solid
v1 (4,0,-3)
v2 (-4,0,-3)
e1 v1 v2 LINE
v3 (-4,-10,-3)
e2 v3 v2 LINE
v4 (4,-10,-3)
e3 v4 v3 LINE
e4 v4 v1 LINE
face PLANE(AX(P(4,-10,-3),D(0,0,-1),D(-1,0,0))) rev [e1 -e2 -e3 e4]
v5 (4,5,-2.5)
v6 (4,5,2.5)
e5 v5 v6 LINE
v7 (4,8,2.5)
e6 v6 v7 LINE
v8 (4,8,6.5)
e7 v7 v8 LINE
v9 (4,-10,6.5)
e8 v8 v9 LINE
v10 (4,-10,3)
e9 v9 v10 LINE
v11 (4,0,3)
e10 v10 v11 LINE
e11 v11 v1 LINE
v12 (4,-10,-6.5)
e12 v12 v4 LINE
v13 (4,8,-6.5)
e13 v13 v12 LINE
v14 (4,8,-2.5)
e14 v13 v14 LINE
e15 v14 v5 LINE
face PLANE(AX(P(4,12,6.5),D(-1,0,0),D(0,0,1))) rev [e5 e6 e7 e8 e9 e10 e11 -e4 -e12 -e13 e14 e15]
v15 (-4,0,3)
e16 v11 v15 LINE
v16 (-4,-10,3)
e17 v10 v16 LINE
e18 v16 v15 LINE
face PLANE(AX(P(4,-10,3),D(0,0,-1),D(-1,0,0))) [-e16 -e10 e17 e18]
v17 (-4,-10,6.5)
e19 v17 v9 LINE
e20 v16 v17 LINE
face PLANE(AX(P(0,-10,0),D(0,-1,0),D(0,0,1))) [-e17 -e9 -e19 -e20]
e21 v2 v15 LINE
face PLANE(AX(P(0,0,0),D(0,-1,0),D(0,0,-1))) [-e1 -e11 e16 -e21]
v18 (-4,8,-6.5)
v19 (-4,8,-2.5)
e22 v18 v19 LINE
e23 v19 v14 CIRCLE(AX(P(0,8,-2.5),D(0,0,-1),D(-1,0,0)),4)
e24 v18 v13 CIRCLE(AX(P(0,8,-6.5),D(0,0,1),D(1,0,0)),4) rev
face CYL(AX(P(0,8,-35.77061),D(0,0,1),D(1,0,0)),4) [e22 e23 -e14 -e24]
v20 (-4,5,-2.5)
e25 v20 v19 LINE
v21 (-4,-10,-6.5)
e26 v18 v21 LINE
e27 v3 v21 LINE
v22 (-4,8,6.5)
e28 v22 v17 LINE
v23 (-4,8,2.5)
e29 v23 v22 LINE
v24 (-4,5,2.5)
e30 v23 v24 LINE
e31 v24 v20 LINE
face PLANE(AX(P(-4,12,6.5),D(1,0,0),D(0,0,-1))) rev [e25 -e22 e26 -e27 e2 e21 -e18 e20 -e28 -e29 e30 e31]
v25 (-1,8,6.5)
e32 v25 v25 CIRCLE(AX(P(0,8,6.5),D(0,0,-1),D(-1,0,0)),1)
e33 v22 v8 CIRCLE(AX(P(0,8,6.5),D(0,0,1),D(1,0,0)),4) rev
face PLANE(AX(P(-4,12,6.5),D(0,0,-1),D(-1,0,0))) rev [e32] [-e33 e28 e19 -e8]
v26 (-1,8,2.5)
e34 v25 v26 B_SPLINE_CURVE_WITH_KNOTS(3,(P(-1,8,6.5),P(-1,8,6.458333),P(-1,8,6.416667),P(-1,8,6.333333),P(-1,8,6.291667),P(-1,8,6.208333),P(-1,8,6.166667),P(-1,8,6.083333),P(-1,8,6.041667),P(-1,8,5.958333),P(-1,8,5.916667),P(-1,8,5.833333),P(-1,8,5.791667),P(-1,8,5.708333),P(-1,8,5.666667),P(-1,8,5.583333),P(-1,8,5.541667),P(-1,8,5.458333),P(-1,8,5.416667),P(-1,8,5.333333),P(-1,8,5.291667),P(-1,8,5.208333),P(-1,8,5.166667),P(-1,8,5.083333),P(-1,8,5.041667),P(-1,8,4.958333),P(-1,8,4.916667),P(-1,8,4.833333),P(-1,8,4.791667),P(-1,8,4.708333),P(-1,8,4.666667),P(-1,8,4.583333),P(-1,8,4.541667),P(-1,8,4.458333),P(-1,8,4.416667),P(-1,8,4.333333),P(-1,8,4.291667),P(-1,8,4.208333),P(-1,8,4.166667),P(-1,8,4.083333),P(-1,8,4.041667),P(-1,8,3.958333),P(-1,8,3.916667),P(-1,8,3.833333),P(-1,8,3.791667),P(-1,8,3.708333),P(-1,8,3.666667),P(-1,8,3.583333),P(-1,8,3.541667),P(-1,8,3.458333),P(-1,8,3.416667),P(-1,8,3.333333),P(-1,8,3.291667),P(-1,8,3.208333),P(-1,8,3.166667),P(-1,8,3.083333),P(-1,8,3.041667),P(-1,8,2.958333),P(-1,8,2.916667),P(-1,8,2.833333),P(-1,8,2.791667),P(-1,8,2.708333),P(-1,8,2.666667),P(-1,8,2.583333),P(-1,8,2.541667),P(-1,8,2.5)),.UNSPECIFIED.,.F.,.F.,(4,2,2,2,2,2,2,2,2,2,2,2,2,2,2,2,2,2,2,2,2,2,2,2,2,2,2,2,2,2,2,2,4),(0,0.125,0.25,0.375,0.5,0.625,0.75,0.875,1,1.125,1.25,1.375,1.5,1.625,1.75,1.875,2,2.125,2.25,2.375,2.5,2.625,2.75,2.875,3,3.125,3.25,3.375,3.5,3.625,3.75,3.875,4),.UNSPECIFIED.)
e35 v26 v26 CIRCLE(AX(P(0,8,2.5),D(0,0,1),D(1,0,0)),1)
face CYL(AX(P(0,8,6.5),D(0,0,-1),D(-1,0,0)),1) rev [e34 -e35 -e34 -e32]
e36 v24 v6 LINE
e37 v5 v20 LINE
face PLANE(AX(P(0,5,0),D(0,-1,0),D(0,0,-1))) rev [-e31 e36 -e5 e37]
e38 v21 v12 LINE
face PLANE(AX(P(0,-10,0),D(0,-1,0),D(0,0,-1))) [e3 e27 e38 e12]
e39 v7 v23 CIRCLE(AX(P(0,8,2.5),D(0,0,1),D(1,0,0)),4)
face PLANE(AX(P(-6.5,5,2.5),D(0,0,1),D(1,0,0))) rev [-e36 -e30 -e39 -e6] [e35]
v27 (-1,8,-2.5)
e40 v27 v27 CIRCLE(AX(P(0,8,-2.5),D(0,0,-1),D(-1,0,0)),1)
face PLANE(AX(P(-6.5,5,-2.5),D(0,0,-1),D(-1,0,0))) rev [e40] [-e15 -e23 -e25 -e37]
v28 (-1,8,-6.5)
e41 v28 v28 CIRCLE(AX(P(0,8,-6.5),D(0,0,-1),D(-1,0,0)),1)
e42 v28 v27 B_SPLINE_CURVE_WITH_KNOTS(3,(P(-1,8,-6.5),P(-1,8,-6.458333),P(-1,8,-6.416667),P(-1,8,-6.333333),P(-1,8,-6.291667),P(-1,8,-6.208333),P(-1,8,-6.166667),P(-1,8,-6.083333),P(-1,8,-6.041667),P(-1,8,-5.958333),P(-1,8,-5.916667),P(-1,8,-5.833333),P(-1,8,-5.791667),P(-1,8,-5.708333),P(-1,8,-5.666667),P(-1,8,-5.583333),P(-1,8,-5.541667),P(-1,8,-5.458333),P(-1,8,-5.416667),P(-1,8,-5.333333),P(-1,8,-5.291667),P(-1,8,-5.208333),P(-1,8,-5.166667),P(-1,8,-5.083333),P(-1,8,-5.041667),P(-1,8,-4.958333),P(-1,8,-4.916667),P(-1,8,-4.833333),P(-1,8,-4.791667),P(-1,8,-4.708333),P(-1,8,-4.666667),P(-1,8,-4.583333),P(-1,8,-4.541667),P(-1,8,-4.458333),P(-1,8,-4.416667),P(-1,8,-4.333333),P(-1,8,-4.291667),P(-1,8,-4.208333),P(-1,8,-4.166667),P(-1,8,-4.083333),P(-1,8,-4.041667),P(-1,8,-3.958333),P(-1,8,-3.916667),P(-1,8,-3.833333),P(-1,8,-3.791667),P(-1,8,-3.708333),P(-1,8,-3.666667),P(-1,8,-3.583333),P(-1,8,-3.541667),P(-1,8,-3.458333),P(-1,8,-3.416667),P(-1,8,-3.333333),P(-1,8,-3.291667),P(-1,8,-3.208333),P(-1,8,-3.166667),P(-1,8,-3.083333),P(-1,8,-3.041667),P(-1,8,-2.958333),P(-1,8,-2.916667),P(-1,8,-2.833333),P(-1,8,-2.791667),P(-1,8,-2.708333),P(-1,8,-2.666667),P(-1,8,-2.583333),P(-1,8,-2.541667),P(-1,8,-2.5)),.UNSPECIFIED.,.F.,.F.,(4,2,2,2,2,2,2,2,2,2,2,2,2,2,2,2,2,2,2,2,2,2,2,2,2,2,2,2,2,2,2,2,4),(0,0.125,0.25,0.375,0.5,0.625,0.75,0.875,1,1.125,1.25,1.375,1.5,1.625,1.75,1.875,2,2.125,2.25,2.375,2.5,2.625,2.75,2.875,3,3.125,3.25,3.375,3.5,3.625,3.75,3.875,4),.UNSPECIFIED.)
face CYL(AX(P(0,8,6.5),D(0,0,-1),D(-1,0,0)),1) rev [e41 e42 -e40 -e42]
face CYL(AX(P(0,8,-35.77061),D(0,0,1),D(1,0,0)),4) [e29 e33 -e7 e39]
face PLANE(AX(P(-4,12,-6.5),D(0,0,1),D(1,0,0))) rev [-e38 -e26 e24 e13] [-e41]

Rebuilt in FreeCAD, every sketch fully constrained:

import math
import FreeCAD as App
import Part
import Sketcher

V = App.Vector
Q = App.Units.Quantity


def add_polygon(sketch, points):
    """Adds a closed chain of lines whose ends are joined by coincident constraints."""
    first, n = sketch.GeometryCount, len(points)
    for a, b in zip(points, points[1:] + points[:1]):
        sketch.addGeometry(Part.LineSegment(App.Vector(*a, 0), App.Vector(*b, 0)), False)
    for i in range(n):
        sketch.addConstraint(Sketcher.Constraint("Coincident", first + i, 2, first + (i + 1) % n, 1))

doc = App.newDocument("Part")
params = doc.addObject("Spreadsheet::Sheet", "Params")
for row, (alias, value) in enumerate([
    ("sketch1_width", "8 mm"),
    ("sketch1_height", "13 mm"),
    ("pad1_length", "12 mm"),
    ("sketch2_width", "13 mm"),
    ("sketch2_height", "5 mm"),
    ("pocket1_length", "7 mm"),
    ("sketch3_diameter", "2 mm"),
    ("sketch4_radius", "4 mm"),
    ("pocket3_length", "32.138357 mm"),
    ("sketch5_width", "8 mm"),
    ("sketch5_height", "3.5 mm"),
    ("pad2_length", "10 mm"),
], start=1):
    params.set(f"A{row}", alias)
    params.set(f"B{row}", "=" + value)
    params.setAlias(f"B{row}", alias)

body = doc.addObject("PartDesign::Body", "Body")

# Sketch on XZ plane
sketch1 = doc.addObject("Sketcher::SketchObject", "Sketch")
body.addObject(sketch1)
sketch1.AttachmentSupport = (doc.XZ_Plane, [""])
sketch1.MapMode = "FlatFace"
add_polygon(sketch1, [(-4, -6), (-4, 6), (4, 6), (4, -6)])  # lines 0-3
sketch1.addConstraint(Sketcher.Constraint("Vertical", 0))
sketch1.addConstraint(Sketcher.Constraint("Horizontal", 1))
sketch1.addConstraint(Sketcher.Constraint("Vertical", 2))
sketch1.addConstraint(Sketcher.Constraint("Horizontal", 3))
sketch1.addConstraint(Sketcher.Constraint("Symmetric", 0, 2, 2, 2, -1, 1))
sketch1.addConstraint(Sketcher.Constraint("DistanceX", 1, 1, 1, 2, Q("8 mm")))
sketch1.addConstraint(Sketcher.Constraint("DistanceY", 0, 1, 0, 2, Q("13 mm")))
sketch1.setExpression("Constraints[9]", "Params.sketch1_width")
sketch1.setExpression("Constraints[10]", "Params.sketch1_height")
pad1 = doc.addObject("PartDesign::Pad", "Pad")
body.addObject(pad1)
pad1.Profile = sketch1
pad1.setExpression("Length", "Params.pad1_length")
pad1.Reversed = True

# Sketch on XZ plane
sketch2 = doc.addObject("Sketcher::SketchObject", "Sketch001")
body.addObject(sketch2)
sketch2.AttachmentSupport = (doc.XZ_Plane, [""])
sketch2.MapMode = "FlatFace"
sketch2.AttachmentOffset = App.Placement(V(0, 0, -12), App.Rotation())
add_polygon(sketch2, [(-6, -2), (-6, 2), (6, 2), (6, -2)])  # lines 0-3
sketch2.addConstraint(Sketcher.Constraint("Vertical", 0))
sketch2.addConstraint(Sketcher.Constraint("Horizontal", 1))
sketch2.addConstraint(Sketcher.Constraint("Vertical", 2))
sketch2.addConstraint(Sketcher.Constraint("Horizontal", 3))
sketch2.addConstraint(Sketcher.Constraint("Symmetric", 0, 2, 2, 2, -1, 1))
sketch2.addConstraint(Sketcher.Constraint("DistanceX", 1, 1, 1, 2, Q("13 mm")))
sketch2.addConstraint(Sketcher.Constraint("DistanceY", 0, 1, 0, 2, Q("5 mm")))
sketch2.setExpression("Constraints[9]", "Params.sketch2_width")
sketch2.setExpression("Constraints[10]", "Params.sketch2_height")
pocket1 = doc.addObject("PartDesign::Pocket", "Pocket")
body.addObject(pocket1)
pocket1.Profile = sketch2
pocket1.setExpression("Length", "Params.pocket1_length")
pocket1.Reversed = True

# Sketch on XY plane
sketch3 = doc.addObject("Sketcher::SketchObject", "Sketch002")
body.addObject(sketch3)
sketch3.AttachmentSupport = (doc.XY_Plane, [""])
sketch3.MapMode = "FlatFace"
sketch3.AttachmentOffset = App.Placement(V(0, 0, -6.5), App.Rotation())
sketch3.addGeometry(Part.Circle(V(0, 8, 0), V(0, 0, 1), 1), False)
sketch3.addConstraint(Sketcher.Constraint("PointOnObject", 0, 3, -2))
sketch3.addConstraint(Sketcher.Constraint("Diameter", 0, Q("2 mm")))
sketch3.addConstraint(Sketcher.Constraint("DistanceY", -1, 1, 0, 3, Q("8 mm")))
sketch3.setExpression("Constraints[1]", "Params.sketch3_diameter")
pocket2 = doc.addObject("PartDesign::Pocket", "Pocket001")
body.addObject(pocket2)
pocket2.Profile = sketch3
pocket2.Type = "ThroughAll"
pocket2.Reversed = True

# Sketch on XY plane
sketch4 = doc.addObject("Sketcher::SketchObject", "Sketch003")
body.addObject(sketch4)
sketch4.AttachmentSupport = (doc.XY_Plane, [""])
sketch4.MapMode = "FlatFace"
sketch4.AttachmentOffset = App.Placement(V(0, 0, 6.5), App.Rotation())
sketch4.addGeometry(Part.LineSegment(V(4, -27.3, 0), V(4, 8, 0)), False)
sketch4.addGeometry(Part.ArcOfCircle(Part.Circle(V(0, 8, 0), V(0, 0, 1), 4), math.radians(0), math.radians(90)), False)
sketch4.addGeometry(Part.LineSegment(V(0, 12, 0), V(-35.3, 12, 0)), False)
sketch4.addGeometry(Part.LineSegment(V(-35.3, 12, 0), V(14.6, 61.9, 0)), False)
sketch4.addGeometry(Part.LineSegment(V(14.6, 61.9, 0), V(53.9, 22.6, 0)), False)
sketch4.addGeometry(Part.LineSegment(V(53.9, 22.6, 0), V(4, -27.3, 0)), False)
sketch4.addConstraint(Sketcher.Constraint("Tangent", 0, 2, 1, 1))
sketch4.addConstraint(Sketcher.Constraint("Tangent", 1, 2, 2, 1))
sketch4.addConstraint(Sketcher.Constraint("Coincident", 2, 2, 3, 1))
sketch4.addConstraint(Sketcher.Constraint("Coincident", 3, 2, 4, 1))
sketch4.addConstraint(Sketcher.Constraint("Coincident", 4, 2, 5, 1))
sketch4.addConstraint(Sketcher.Constraint("Coincident", 5, 2, 0, 1))
sketch4.addConstraint(Sketcher.Constraint("Vertical", 0))
sketch4.addConstraint(Sketcher.Constraint("Horizontal", 2))
sketch4.addConstraint(Sketcher.Constraint("PointOnObject", 1, 3, -2))
sketch4.addConstraint(Sketcher.Constraint("Perpendicular", 3, 4))
sketch4.addConstraint(Sketcher.Constraint("Perpendicular", 4, 5))
sketch4.addConstraint(Sketcher.Constraint("Equal", 2, 0))
sketch4.addConstraint(Sketcher.Constraint("Equal", 3, 5))
sketch4.addConstraint(Sketcher.Constraint("Radius", 1, Q("4 mm")))
sketch4.addConstraint(Sketcher.Constraint("DistanceY", -1, 1, 1, 3, Q("8 mm")))
sketch4.addConstraint(Sketcher.Constraint("DistanceX", -1, 1, 3, 2, Q("14.621002 mm")))
sketch4.addConstraint(Sketcher.Constraint("DistanceX", 2, 2, 2, 1, Q("35.298221 mm")))
sketch4.setExpression("Constraints[13]", "Params.sketch4_radius")
pocket3 = doc.addObject("PartDesign::Pocket", "Pocket002")
body.addObject(pocket3)
pocket3.Profile = sketch4
pocket3.setExpression("Length", "Params.pocket3_length")
doc.recompute()

mirrored = doc.addObject("PartDesign::Mirrored", "Mirrored")
body.addObject(mirrored)
mirrored.Originals = [pocket3]
mirrored.MirrorPlane = (doc.YZ_Plane, [""])
body.Tip = mirrored

# Sketch on XZ plane
sketch5 = doc.addObject("Sketcher::SketchObject", "Sketch004")
body.addObject(sketch5)
sketch5.AttachmentSupport = (doc.XZ_Plane, [""])
sketch5.MapMode = "FlatFace"
add_polygon(sketch5, [(-4, -3), (-4, -6.5), (4, -6.5), (4, -3)])  # lines 0-3
sketch5.addConstraint(Sketcher.Constraint("Vertical", 0))
sketch5.addConstraint(Sketcher.Constraint("Horizontal", 1))
sketch5.addConstraint(Sketcher.Constraint("Vertical", 2))
sketch5.addConstraint(Sketcher.Constraint("Horizontal", 3))
sketch5.addConstraint(Sketcher.Constraint("DistanceX", 1, 1, 1, 2, Q("8 mm")))
sketch5.addConstraint(Sketcher.Constraint("DistanceY", 0, 2, 0, 1, Q("3.5 mm")))
sketch5.addConstraint(Sketcher.Constraint("DistanceX", 0, 2, -1, 1, Q("4 mm")))
sketch5.addConstraint(Sketcher.Constraint("DistanceY", 2, 2, -1, 1, Q("3 mm")))
sketch5.setExpression("Constraints[8]", "Params.sketch5_width")
sketch5.setExpression("Constraints[9]", "Params.sketch5_height")
pad2 = doc.addObject("PartDesign::Pad", "Pad001")
body.addObject(pad2)
pad2.Profile = sketch5
pad2.setExpression("Length", "Params.pad2_length")
doc.recompute()

mirrored2 = doc.addObject("PartDesign::Mirrored", "Mirrored001")
body.addObject(mirrored2)
mirrored2.Originals = [pad2]
mirrored2.MirrorPlane = (doc.XY_Plane, [""])
body.Tip = mirrored2

doc.recompute()
